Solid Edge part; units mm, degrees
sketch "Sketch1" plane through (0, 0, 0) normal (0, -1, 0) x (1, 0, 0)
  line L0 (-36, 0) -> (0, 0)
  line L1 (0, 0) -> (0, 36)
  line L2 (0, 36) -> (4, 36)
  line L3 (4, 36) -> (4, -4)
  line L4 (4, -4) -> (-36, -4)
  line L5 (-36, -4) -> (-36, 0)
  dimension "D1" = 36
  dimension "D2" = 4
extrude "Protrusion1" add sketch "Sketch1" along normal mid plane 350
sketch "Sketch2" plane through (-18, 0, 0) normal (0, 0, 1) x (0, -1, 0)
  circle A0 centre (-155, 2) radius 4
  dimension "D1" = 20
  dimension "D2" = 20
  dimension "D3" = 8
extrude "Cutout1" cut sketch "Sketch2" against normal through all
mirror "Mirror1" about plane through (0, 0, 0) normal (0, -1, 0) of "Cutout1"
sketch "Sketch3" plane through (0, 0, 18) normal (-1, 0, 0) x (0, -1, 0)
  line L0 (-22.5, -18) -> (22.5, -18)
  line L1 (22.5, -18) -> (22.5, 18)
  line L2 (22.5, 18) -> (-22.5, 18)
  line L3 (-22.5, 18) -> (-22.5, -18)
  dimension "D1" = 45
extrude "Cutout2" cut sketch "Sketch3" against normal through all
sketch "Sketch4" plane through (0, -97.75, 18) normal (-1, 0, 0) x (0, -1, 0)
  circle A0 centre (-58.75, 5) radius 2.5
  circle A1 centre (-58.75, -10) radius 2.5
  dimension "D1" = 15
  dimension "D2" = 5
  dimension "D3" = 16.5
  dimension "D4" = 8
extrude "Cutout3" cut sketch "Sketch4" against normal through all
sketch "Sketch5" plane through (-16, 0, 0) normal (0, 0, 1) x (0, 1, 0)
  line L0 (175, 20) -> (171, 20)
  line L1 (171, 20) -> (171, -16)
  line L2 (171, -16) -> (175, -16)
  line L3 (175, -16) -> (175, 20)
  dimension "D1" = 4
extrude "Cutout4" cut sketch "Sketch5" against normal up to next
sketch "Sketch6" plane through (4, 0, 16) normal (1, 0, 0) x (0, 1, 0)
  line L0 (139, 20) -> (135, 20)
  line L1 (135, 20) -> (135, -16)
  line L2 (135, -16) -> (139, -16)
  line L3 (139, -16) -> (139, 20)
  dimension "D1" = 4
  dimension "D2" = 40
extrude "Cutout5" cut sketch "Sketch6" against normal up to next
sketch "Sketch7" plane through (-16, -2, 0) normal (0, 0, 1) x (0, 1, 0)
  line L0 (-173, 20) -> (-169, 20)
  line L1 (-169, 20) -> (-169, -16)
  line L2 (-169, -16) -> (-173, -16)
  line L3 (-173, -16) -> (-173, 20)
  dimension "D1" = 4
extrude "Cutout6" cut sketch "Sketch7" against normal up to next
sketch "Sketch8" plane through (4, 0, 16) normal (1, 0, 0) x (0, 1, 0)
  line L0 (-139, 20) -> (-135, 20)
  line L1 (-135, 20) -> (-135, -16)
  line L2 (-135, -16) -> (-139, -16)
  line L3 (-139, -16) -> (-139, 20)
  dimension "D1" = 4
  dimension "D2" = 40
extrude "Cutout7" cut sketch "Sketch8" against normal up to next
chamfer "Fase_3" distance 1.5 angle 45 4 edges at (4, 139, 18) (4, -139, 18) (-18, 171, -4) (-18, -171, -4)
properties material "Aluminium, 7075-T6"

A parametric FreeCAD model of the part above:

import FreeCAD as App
import Part
import Sketcher
from FreeCAD import Vector


def edges_at(feature, points):
    """Names of the edges that pass closest to the given points."""
    edges = feature.Shape.Edges
    near = lambda p: min(range(len(edges)), key=lambda i: edges[i].distToShape(Part.Vertex(*p))[0])
    return sorted({f"Edge{near(p) + 1}" for p in points})


def add_polygon(sketch, points):
    """Adds a closed chain of lines whose ends are joined by coincident constraints."""
    first, n = sketch.GeometryCount, len(points)
    for a, b in zip(points, points[1:] + points[:1]):
        sketch.addGeometry(Part.LineSegment(App.Vector(*a, 0), App.Vector(*b, 0)), False)
    for i in range(n):
        sketch.addConstraint(Sketcher.Constraint("Coincident", first + i, 2, first + (i + 1) % n, 1))

doc = App.newDocument("Part")
params = doc.addObject("Spreadsheet::Sheet", "Params")
for row, (alias, value) in enumerate([
    ("sketch1_width", "36 mm"),
    ("sketch1_width2", "40 mm"),
    ("pad1_length", "350 mm"),
    ("sketch2_diameter", "8 mm"),
    ("sketch3_height", "36 mm"),
    ("sketch4_diameter", "5 mm"),
    ("sketch5_width", "36 mm"),
    ("sketch5_height", "4 mm"),
    ("sketch6_width", "4 mm"),
    ("sketch6_height", "36 mm"),
    ("sketch7_width", "36 mm"),
    ("sketch7_height", "4 mm"),
    ("sketch8_width", "4 mm"),
    ("sketch8_height", "36 mm"),
    ("chamfer_size", "1.5 mm"),
], start=1):
    params.set(f"A{row}", alias)
    params.set(f"B{row}", "=" + value)
    params.setAlias(f"B{row}", alias)

body = doc.addObject("PartDesign::Body", "Body")

# Sketch on XZ plane
sketch1 = doc.addObject("Sketcher::SketchObject", "Sketch")
body.addObject(sketch1)
sketch1.AttachmentSupport = (doc.XZ_Plane, [""])
sketch1.MapMode = "FlatFace"
add_polygon(sketch1, [(0, 0), (-36, 0), (-36, -4), (4, -4), (4, 36), (0, 36)])  # lines 0-5
sketch1.addConstraint([
    Sketcher.Constraint("Horizontal", 0),
    Sketcher.Constraint("Vertical", 1),
    Sketcher.Constraint("Horizontal", 2),
    Sketcher.Constraint("Vertical", 3),
    Sketcher.Constraint("Horizontal", 4),
    Sketcher.Constraint("Vertical", 5),
    Sketcher.Constraint("Coincident", 5, 2, -1, 1),
    Sketcher.Constraint("Equal", 4, 1),
    Sketcher.Constraint("Equal", 2, 3),
    Sketcher.Constraint("DistanceX", 0, 2, 0, 1, 36.0),
    Sketcher.Constraint("DistanceX", 2, 1, 2, 2, 40.0),
])
sketch1.setExpression("Constraints[15]", "Params.sketch1_width")
sketch1.setExpression("Constraints[16]", "Params.sketch1_width2")
pad1 = doc.addObject("PartDesign::Pad", "Pad")
body.addObject(pad1)
pad1.Profile = sketch1
pad1.setExpression("Length", "Params.pad1_length")
pad1.Midplane = True

# Sketch on XY plane
sketch2 = doc.addObject("Sketcher::SketchObject", "Sketch001")
body.addObject(sketch2)
sketch2.AttachmentSupport = (doc.XY_Plane, [""])
sketch2.MapMode = "FlatFace"
sketch2.addGeometry(Part.Circle(Vector(-16, 155, 0), Vector(0, 0, 1), 4), False)
sketch2.addConstraint([
    Sketcher.Constraint("Diameter", 0, 8.0),
    Sketcher.Constraint("DistanceY", -1, 1, 0, 3, 155.0),
    Sketcher.Constraint("DistanceX", 0, 3, -1, 1, 16.0),
])
sketch2.setExpression("Constraints[0]", "Params.sketch2_diameter")
pocket1 = doc.addObject("PartDesign::Pocket", "Pocket")
body.addObject(pocket1)
pocket1.Profile = sketch2
pocket1.Type = "ThroughAll"
doc.recompute()

mirrored = doc.addObject("PartDesign::Mirrored", "Mirrored")
body.addObject(mirrored)
mirrored.Originals = [pocket1]
mirrored.MirrorPlane = (doc.XZ_Plane, [""])
body.Tip = mirrored

# Sketch on YZ plane
sketch3 = doc.addObject("Sketcher::SketchObject", "Sketch002")
body.addObject(sketch3)
sketch3.AttachmentSupport = (doc.YZ_Plane, [""])
sketch3.MapMode = "FlatFace"
add_polygon(sketch3, [(22, 36), (22, 0), (-22, 0), (-22, 36)])  # lines 0-3
sketch3.addConstraint([
    Sketcher.Constraint("Vertical", 0),
    Sketcher.Constraint("Horizontal", 1),
    Sketcher.Constraint("Vertical", 2),
    Sketcher.Constraint("Horizontal", 3),
    Sketcher.Constraint("Symmetric", 0, 2, 1, 2, -1, 1),
    Sketcher.Constraint("DistanceX", -1, 1, 0, 2, 22.5),
    Sketcher.Constraint("DistanceY", 0, 2, 0, 1, 36.0),
])
sketch3.setExpression("Constraints[10]", "Params.sketch3_height")
pocket2 = doc.addObject("PartDesign::Pocket", "Pocket001")
body.addObject(pocket2)
pocket2.Profile = sketch3
pocket2.Type = "ThroughAll"
pocket2.Reversed = True

# Sketch on YZ plane
sketch4 = doc.addObject("Sketcher::SketchObject", "Sketch003")
body.addObject(sketch4)
sketch4.AttachmentSupport = (doc.YZ_Plane, [""])
sketch4.MapMode = "FlatFace"
sketch4.addGeometry([
    Part.Circle(Vector(-39, 23, 0), Vector(0, 0, 1), 2.5),
    Part.Circle(Vector(-39, 8, 0), Vector(0, 0, 1), 2.5),
], False)
sketch4.addConstraint([
    Sketcher.Constraint("Equal", 0, 1),
    Sketcher.Constraint("Vertical", 0, 3, 1, 3),
    Sketcher.Constraint("Diameter", 0, 5.0),
    Sketcher.Constraint("DistanceX", 0, 3, -1, 1, 39.0),
    Sketcher.Constraint("DistanceY", -1, 1, 0, 3, 23.0),
    Sketcher.Constraint("DistanceY", -1, 1, 1, 3, 8.0),
])
sketch4.setExpression("Constraints[2]", "Params.sketch4_diameter")
pocket3 = doc.addObject("PartDesign::Pocket", "Pocket002")
body.addObject(pocket3)
pocket3.Profile = sketch4
pocket3.Type = "ThroughAll"
pocket3.Reversed = True

# Sketch on XY plane
sketch5 = doc.addObject("Sketcher::SketchObject", "Sketch004")
body.addObject(sketch5)
sketch5.AttachmentSupport = (doc.XY_Plane, [""])
sketch5.MapMode = "FlatFace"
add_polygon(sketch5, [(0, 175), (-36, 175), (-36, 171), (0, 171)])  # lines 0-3
sketch5.addConstraint([
    Sketcher.Constraint("Horizontal", 0),
    Sketcher.Constraint("Vertical", 1),
    Sketcher.Constraint("Horizontal", 2),
    Sketcher.Constraint("Vertical", 3),
    Sketcher.Constraint("PointOnObject", 2, 2, -2),
    Sketcher.Constraint("DistanceY", -1, 1, 0, 2, 175.0),
    Sketcher.Constraint("DistanceX", 0, 2, 0, 1, 36.0),
    Sketcher.Constraint("DistanceY", 1, 2, 1, 1, 4.0),
])
sketch5.setExpression("Constraints[10]", "Params.sketch5_width")
sketch5.setExpression("Constraints[11]", "Params.sketch5_height")
pocket4 = doc.addObject("PartDesign::Pocket", "Pocket003")
body.addObject(pocket4)
pocket4.Profile = sketch5
pocket4.Type = "UpToFirst"

# Sketch on YZ plane
sketch6 = doc.addObject("Sketcher::SketchObject", "Sketch005")
body.addObject(sketch6)
sketch6.AttachmentSupport = (doc.YZ_Plane, [""])
sketch6.MapMode = "FlatFace"
sketch6.AttachmentOffset = App.Placement(Vector(0, 0, 4), App.Rotation())
add_polygon(sketch6, [(139, 0), (139, 36), (135, 36), (135, 0)])  # lines 0-3
sketch6.addConstraint([
    Sketcher.Constraint("Vertical", 0),
    Sketcher.Constraint("Horizontal", 1),
    Sketcher.Constraint("Vertical", 2),
    Sketcher.Constraint("Horizontal", 3),
    Sketcher.Constraint("PointOnObject", 2, 2, -1),
    Sketcher.Constraint("DistanceX", -1, 1, 0, 2, 139.0),
    Sketcher.Constraint("DistanceX", 1, 2, 1, 1, 4.0),
    Sketcher.Constraint("DistanceY", 0, 1, 0, 2, 36.0),
])
sketch6.setExpression("Constraints[10]", "Params.sketch6_width")
sketch6.setExpression("Constraints[11]", "Params.sketch6_height")
pocket5 = doc.addObject("PartDesign::Pocket", "Pocket004")
body.addObject(pocket5)
pocket5.Profile = sketch6
pocket5.Type = "UpToFirst"

# Sketch on XY plane
sketch7 = doc.addObject("Sketcher::SketchObject", "Sketch006")
body.addObject(sketch7)
sketch7.AttachmentSupport = (doc.XY_Plane, [""])
sketch7.MapMode = "FlatFace"
add_polygon(sketch7, [(-36, -171), (-36, -175), (0, -175), (0, -171)])  # lines 0-3
sketch7.addConstraint([
    Sketcher.Constraint("Vertical", 0),
    Sketcher.Constraint("Horizontal", 1),
    Sketcher.Constraint("Vertical", 2),
    Sketcher.Constraint("Horizontal", 3),
    Sketcher.Constraint("PointOnObject", 1, 2, -2),
    Sketcher.Constraint("DistanceX", 1, 1, 1, 2, 36.0),
    Sketcher.Constraint("DistanceY", 0, 2, 0, 1, 4.0),
    Sketcher.Constraint("DistanceY", 0, 2, -1, 1, 175.0),
])
sketch7.setExpression("Constraints[9]", "Params.sketch7_width")
sketch7.setExpression("Constraints[10]", "Params.sketch7_height")
pocket6 = doc.addObject("PartDesign::Pocket", "Pocket005")
body.addObject(pocket6)
pocket6.Profile = sketch7
pocket6.Type = "UpToFirst"

# Sketch on YZ plane
sketch8 = doc.addObject("Sketcher::SketchObject", "Sketch007")
body.addObject(sketch8)
sketch8.AttachmentSupport = (doc.YZ_Plane, [""])
sketch8.MapMode = "FlatFace"
sketch8.AttachmentOffset = App.Placement(Vector(0, 0, 4), App.Rotation())
add_polygon(sketch8, [(-135, 36), (-139, 36), (-139, 0), (-135, 0)])  # lines 0-3
sketch8.addConstraint([
    Sketcher.Constraint("Horizontal", 0),
    Sketcher.Constraint("Vertical", 1),
    Sketcher.Constraint("Horizontal", 2),
    Sketcher.Constraint("Vertical", 3),
    Sketcher.Constraint("PointOnObject", 1, 2, -1),
    Sketcher.Constraint("DistanceX", 0, 2, -1, 1, 139.0),
    Sketcher.Constraint("DistanceX", 0, 2, 0, 1, 4.0),
    Sketcher.Constraint("DistanceY", 1, 2, 1, 1, 36.0),
])
sketch8.setExpression("Constraints[10]", "Params.sketch8_width")
sketch8.setExpression("Constraints[11]", "Params.sketch8_height")
pocket7 = doc.addObject("PartDesign::Pocket", "Pocket006")
body.addObject(pocket7)
pocket7.Profile = sketch8
pocket7.Type = "UpToFirst"
doc.recompute()

chamfer = doc.addObject("PartDesign::Chamfer", "Chamfer")
body.addObject(chamfer)
chamfer.Base = (pocket7, edges_at(pocket7, [
    (4, 139, 18),
    (4, -139, 18),
    (-18, 171, -4),
    (-18, -171, -4),
]))
chamfer.setExpression("Size", "Params.chamfer_size")

doc.recompute()
